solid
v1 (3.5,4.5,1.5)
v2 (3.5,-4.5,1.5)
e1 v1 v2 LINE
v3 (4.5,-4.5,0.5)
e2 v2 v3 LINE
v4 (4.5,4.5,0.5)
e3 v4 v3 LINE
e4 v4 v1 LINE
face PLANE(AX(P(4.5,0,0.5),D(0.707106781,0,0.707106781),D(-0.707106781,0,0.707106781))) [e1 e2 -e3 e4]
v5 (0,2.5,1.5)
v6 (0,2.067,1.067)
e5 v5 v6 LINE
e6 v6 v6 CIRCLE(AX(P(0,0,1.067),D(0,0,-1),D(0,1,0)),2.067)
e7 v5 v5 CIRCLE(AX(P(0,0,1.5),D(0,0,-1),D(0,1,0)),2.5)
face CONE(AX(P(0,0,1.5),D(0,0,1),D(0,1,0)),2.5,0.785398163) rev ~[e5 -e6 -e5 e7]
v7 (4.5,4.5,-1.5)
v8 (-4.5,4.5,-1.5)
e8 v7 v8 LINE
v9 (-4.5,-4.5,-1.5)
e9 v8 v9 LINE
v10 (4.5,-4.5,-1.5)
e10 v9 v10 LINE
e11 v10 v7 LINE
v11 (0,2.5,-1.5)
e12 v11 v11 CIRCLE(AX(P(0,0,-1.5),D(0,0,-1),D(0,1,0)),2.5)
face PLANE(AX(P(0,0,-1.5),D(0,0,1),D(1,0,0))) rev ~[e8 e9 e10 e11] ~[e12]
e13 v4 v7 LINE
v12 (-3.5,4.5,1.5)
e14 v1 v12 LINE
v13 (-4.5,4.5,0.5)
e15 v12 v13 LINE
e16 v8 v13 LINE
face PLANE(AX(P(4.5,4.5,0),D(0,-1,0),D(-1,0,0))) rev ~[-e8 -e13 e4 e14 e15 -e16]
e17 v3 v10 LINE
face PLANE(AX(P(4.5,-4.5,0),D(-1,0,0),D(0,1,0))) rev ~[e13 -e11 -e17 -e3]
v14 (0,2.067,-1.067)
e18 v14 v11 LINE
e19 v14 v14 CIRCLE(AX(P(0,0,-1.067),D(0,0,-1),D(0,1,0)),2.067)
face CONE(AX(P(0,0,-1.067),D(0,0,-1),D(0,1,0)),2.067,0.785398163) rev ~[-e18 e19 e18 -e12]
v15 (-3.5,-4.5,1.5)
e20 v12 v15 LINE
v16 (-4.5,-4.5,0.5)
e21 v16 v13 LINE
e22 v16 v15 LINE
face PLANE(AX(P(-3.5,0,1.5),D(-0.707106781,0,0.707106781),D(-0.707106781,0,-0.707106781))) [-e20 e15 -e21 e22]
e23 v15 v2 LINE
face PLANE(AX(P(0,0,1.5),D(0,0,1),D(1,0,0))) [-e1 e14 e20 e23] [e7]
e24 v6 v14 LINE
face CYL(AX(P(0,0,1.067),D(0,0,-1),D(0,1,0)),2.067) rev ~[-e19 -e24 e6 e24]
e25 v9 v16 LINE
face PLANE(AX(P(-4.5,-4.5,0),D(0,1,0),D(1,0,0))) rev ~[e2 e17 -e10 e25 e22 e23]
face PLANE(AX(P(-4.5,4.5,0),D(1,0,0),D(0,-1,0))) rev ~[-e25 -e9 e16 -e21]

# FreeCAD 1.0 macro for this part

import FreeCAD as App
import Part
import Sketcher
from FreeCAD import Vector
Q = App.Units.Quantity


def add_polygon(sketch, points):
    """Adds a closed chain of lines whose ends are joined by coincident constraints."""
    first, n = sketch.GeometryCount, len(points)
    for a, b in zip(points, points[1:] + points[:1]):
        sketch.addGeometry(Part.LineSegment(App.Vector(*a, 0), App.Vector(*b, 0)), False)
    for i in range(n):
        sketch.addConstraint(Sketcher.Constraint("Coincident", first + i, 2, first + (i + 1) % n, 1))

doc = App.newDocument("Part")
body = doc.addObject("PartDesign::Body", "Body")

# Sketch on XY plane
sketch1 = doc.addObject("Sketcher::SketchObject", "Sketch")
body.addObject(sketch1)
sketch1.AttachmentSupport = (doc.XY_Plane, [""])
sketch1.MapMode = "FlatFace"
add_polygon(sketch1, [(4.5, 4.5), (-4.5, 4.5), (-4.5, -4.5), (4.5, -4.5)])  # lines 0-3
sketch1.addConstraint(Sketcher.Constraint("Horizontal", 0))
sketch1.addConstraint(Sketcher.Constraint("Vertical", 1))
sketch1.addConstraint(Sketcher.Constraint("Horizontal", 2))
sketch1.addConstraint(Sketcher.Constraint("Vertical", 3))
sketch1.addConstraint(Sketcher.Constraint("Symmetric", 0, 2, 2, 2, -1, 1))
sketch1.addConstraint(Sketcher.Constraint("Equal", 2, 1))
sketch1.addConstraint(Sketcher.Constraint("DistanceX", 0, 2, 0, 1, Q("9 mm")))
pad1 = doc.addObject("PartDesign::Pad", "Pad")
body.addObject(pad1)
pad1.Profile = sketch1
pad1.Length = 3
pad1.Midplane = True

# Sketch on YZ plane
sketch2 = doc.addObject("Sketcher::SketchObject", "Sketch001")
body.addObject(sketch2)
sketch2.AttachmentSupport = (doc.YZ_Plane, [""])
sketch2.MapMode = "FlatFace"
add_polygon(sketch2, [(0, 1.5), (0, -1.5), (2.5, -1.5), (2.067, -1.067), (2.067, 1.067), (2.5, 1.5)])  # lines 0-5
sketch2.addConstraint(Sketcher.Constraint("Vertical", 0))
sketch2.addConstraint(Sketcher.Constraint("Horizontal", 1))
sketch2.addConstraint(Sketcher.Constraint("Vertical", 3))
sketch2.addConstraint(Sketcher.Constraint("Horizontal", 5))
sketch2.addConstraint(Sketcher.Constraint("Symmetric", 0, 2, 5, 2, -1, 1))
sketch2.addConstraint(Sketcher.Constraint("Perpendicular", 2, 4))
sketch2.addConstraint(Sketcher.Constraint("Vertical", 1, 2, 4, 2))
sketch2.addConstraint(Sketcher.Constraint("Equal", 2, 4))
sketch2.addConstraint(Sketcher.Constraint("DistanceY", 0, 2, 0, 1, Q("3 mm")))
sketch2.addConstraint(Sketcher.Constraint("DistanceX", 1, 1, 1, 2, Q("2.5 mm")))
sketch2.addConstraint(Sketcher.Constraint("DistanceY", 3, 1, 3, 2, Q("2.134 mm")))
groove = doc.addObject("PartDesign::Groove", "Groove")
body.addObject(groove)
groove.Profile = sketch2
groove.ReferenceAxis = (sketch2, ["V_Axis"])
groove.Angle = 360

# Sketch on XZ plane
sketch3 = doc.addObject("Sketcher::SketchObject", "Sketch002")
body.addObject(sketch3)
sketch3.AttachmentSupport = (doc.XZ_Plane, [""])
sketch3.MapMode = "FlatFace"
add_polygon(sketch3, [(-3.5, 1.5), (-4.5, 0.5), (-4.5, 2.5), (4.5, 2.5), (4.5, 0.5), (3.5, 1.5)])  # lines 0-5
sketch3.addConstraint(Sketcher.Constraint("Vertical", 1))
sketch3.addConstraint(Sketcher.Constraint("Horizontal", 2))
sketch3.addConstraint(Sketcher.Constraint("Vertical", 3))
sketch3.addConstraint(Sketcher.Constraint("Horizontal", 5))
sketch3.addConstraint(Sketcher.Constraint("Symmetric", 0, 2, 3, 2, -2))
sketch3.addConstraint(Sketcher.Constraint("Perpendicular", 0, 4))
sketch3.addConstraint(Sketcher.Constraint("Equal", 0, 4))
sketch3.addConstraint(Sketcher.Constraint("DistanceX", 2, 1, 2, 2, Q("9 mm")))
sketch3.addConstraint(Sketcher.Constraint("DistanceX", 5, 2, 5, 1, Q("7 mm")))
sketch3.addConstraint(Sketcher.Constraint("DistanceY", 1, 1, 1, 2, Q("2 mm")))
sketch3.addConstraint(Sketcher.Constraint("DistanceY", -1, 1, 0, 2, Q("0.5 mm")))
pocket1 = doc.addObject("PartDesign::Pocket", "Pocket")
body.addObject(pocket1)
pocket1.Profile = sketch3
pocket1.Length = 18
pocket1.Midplane = True

doc.recompute()
